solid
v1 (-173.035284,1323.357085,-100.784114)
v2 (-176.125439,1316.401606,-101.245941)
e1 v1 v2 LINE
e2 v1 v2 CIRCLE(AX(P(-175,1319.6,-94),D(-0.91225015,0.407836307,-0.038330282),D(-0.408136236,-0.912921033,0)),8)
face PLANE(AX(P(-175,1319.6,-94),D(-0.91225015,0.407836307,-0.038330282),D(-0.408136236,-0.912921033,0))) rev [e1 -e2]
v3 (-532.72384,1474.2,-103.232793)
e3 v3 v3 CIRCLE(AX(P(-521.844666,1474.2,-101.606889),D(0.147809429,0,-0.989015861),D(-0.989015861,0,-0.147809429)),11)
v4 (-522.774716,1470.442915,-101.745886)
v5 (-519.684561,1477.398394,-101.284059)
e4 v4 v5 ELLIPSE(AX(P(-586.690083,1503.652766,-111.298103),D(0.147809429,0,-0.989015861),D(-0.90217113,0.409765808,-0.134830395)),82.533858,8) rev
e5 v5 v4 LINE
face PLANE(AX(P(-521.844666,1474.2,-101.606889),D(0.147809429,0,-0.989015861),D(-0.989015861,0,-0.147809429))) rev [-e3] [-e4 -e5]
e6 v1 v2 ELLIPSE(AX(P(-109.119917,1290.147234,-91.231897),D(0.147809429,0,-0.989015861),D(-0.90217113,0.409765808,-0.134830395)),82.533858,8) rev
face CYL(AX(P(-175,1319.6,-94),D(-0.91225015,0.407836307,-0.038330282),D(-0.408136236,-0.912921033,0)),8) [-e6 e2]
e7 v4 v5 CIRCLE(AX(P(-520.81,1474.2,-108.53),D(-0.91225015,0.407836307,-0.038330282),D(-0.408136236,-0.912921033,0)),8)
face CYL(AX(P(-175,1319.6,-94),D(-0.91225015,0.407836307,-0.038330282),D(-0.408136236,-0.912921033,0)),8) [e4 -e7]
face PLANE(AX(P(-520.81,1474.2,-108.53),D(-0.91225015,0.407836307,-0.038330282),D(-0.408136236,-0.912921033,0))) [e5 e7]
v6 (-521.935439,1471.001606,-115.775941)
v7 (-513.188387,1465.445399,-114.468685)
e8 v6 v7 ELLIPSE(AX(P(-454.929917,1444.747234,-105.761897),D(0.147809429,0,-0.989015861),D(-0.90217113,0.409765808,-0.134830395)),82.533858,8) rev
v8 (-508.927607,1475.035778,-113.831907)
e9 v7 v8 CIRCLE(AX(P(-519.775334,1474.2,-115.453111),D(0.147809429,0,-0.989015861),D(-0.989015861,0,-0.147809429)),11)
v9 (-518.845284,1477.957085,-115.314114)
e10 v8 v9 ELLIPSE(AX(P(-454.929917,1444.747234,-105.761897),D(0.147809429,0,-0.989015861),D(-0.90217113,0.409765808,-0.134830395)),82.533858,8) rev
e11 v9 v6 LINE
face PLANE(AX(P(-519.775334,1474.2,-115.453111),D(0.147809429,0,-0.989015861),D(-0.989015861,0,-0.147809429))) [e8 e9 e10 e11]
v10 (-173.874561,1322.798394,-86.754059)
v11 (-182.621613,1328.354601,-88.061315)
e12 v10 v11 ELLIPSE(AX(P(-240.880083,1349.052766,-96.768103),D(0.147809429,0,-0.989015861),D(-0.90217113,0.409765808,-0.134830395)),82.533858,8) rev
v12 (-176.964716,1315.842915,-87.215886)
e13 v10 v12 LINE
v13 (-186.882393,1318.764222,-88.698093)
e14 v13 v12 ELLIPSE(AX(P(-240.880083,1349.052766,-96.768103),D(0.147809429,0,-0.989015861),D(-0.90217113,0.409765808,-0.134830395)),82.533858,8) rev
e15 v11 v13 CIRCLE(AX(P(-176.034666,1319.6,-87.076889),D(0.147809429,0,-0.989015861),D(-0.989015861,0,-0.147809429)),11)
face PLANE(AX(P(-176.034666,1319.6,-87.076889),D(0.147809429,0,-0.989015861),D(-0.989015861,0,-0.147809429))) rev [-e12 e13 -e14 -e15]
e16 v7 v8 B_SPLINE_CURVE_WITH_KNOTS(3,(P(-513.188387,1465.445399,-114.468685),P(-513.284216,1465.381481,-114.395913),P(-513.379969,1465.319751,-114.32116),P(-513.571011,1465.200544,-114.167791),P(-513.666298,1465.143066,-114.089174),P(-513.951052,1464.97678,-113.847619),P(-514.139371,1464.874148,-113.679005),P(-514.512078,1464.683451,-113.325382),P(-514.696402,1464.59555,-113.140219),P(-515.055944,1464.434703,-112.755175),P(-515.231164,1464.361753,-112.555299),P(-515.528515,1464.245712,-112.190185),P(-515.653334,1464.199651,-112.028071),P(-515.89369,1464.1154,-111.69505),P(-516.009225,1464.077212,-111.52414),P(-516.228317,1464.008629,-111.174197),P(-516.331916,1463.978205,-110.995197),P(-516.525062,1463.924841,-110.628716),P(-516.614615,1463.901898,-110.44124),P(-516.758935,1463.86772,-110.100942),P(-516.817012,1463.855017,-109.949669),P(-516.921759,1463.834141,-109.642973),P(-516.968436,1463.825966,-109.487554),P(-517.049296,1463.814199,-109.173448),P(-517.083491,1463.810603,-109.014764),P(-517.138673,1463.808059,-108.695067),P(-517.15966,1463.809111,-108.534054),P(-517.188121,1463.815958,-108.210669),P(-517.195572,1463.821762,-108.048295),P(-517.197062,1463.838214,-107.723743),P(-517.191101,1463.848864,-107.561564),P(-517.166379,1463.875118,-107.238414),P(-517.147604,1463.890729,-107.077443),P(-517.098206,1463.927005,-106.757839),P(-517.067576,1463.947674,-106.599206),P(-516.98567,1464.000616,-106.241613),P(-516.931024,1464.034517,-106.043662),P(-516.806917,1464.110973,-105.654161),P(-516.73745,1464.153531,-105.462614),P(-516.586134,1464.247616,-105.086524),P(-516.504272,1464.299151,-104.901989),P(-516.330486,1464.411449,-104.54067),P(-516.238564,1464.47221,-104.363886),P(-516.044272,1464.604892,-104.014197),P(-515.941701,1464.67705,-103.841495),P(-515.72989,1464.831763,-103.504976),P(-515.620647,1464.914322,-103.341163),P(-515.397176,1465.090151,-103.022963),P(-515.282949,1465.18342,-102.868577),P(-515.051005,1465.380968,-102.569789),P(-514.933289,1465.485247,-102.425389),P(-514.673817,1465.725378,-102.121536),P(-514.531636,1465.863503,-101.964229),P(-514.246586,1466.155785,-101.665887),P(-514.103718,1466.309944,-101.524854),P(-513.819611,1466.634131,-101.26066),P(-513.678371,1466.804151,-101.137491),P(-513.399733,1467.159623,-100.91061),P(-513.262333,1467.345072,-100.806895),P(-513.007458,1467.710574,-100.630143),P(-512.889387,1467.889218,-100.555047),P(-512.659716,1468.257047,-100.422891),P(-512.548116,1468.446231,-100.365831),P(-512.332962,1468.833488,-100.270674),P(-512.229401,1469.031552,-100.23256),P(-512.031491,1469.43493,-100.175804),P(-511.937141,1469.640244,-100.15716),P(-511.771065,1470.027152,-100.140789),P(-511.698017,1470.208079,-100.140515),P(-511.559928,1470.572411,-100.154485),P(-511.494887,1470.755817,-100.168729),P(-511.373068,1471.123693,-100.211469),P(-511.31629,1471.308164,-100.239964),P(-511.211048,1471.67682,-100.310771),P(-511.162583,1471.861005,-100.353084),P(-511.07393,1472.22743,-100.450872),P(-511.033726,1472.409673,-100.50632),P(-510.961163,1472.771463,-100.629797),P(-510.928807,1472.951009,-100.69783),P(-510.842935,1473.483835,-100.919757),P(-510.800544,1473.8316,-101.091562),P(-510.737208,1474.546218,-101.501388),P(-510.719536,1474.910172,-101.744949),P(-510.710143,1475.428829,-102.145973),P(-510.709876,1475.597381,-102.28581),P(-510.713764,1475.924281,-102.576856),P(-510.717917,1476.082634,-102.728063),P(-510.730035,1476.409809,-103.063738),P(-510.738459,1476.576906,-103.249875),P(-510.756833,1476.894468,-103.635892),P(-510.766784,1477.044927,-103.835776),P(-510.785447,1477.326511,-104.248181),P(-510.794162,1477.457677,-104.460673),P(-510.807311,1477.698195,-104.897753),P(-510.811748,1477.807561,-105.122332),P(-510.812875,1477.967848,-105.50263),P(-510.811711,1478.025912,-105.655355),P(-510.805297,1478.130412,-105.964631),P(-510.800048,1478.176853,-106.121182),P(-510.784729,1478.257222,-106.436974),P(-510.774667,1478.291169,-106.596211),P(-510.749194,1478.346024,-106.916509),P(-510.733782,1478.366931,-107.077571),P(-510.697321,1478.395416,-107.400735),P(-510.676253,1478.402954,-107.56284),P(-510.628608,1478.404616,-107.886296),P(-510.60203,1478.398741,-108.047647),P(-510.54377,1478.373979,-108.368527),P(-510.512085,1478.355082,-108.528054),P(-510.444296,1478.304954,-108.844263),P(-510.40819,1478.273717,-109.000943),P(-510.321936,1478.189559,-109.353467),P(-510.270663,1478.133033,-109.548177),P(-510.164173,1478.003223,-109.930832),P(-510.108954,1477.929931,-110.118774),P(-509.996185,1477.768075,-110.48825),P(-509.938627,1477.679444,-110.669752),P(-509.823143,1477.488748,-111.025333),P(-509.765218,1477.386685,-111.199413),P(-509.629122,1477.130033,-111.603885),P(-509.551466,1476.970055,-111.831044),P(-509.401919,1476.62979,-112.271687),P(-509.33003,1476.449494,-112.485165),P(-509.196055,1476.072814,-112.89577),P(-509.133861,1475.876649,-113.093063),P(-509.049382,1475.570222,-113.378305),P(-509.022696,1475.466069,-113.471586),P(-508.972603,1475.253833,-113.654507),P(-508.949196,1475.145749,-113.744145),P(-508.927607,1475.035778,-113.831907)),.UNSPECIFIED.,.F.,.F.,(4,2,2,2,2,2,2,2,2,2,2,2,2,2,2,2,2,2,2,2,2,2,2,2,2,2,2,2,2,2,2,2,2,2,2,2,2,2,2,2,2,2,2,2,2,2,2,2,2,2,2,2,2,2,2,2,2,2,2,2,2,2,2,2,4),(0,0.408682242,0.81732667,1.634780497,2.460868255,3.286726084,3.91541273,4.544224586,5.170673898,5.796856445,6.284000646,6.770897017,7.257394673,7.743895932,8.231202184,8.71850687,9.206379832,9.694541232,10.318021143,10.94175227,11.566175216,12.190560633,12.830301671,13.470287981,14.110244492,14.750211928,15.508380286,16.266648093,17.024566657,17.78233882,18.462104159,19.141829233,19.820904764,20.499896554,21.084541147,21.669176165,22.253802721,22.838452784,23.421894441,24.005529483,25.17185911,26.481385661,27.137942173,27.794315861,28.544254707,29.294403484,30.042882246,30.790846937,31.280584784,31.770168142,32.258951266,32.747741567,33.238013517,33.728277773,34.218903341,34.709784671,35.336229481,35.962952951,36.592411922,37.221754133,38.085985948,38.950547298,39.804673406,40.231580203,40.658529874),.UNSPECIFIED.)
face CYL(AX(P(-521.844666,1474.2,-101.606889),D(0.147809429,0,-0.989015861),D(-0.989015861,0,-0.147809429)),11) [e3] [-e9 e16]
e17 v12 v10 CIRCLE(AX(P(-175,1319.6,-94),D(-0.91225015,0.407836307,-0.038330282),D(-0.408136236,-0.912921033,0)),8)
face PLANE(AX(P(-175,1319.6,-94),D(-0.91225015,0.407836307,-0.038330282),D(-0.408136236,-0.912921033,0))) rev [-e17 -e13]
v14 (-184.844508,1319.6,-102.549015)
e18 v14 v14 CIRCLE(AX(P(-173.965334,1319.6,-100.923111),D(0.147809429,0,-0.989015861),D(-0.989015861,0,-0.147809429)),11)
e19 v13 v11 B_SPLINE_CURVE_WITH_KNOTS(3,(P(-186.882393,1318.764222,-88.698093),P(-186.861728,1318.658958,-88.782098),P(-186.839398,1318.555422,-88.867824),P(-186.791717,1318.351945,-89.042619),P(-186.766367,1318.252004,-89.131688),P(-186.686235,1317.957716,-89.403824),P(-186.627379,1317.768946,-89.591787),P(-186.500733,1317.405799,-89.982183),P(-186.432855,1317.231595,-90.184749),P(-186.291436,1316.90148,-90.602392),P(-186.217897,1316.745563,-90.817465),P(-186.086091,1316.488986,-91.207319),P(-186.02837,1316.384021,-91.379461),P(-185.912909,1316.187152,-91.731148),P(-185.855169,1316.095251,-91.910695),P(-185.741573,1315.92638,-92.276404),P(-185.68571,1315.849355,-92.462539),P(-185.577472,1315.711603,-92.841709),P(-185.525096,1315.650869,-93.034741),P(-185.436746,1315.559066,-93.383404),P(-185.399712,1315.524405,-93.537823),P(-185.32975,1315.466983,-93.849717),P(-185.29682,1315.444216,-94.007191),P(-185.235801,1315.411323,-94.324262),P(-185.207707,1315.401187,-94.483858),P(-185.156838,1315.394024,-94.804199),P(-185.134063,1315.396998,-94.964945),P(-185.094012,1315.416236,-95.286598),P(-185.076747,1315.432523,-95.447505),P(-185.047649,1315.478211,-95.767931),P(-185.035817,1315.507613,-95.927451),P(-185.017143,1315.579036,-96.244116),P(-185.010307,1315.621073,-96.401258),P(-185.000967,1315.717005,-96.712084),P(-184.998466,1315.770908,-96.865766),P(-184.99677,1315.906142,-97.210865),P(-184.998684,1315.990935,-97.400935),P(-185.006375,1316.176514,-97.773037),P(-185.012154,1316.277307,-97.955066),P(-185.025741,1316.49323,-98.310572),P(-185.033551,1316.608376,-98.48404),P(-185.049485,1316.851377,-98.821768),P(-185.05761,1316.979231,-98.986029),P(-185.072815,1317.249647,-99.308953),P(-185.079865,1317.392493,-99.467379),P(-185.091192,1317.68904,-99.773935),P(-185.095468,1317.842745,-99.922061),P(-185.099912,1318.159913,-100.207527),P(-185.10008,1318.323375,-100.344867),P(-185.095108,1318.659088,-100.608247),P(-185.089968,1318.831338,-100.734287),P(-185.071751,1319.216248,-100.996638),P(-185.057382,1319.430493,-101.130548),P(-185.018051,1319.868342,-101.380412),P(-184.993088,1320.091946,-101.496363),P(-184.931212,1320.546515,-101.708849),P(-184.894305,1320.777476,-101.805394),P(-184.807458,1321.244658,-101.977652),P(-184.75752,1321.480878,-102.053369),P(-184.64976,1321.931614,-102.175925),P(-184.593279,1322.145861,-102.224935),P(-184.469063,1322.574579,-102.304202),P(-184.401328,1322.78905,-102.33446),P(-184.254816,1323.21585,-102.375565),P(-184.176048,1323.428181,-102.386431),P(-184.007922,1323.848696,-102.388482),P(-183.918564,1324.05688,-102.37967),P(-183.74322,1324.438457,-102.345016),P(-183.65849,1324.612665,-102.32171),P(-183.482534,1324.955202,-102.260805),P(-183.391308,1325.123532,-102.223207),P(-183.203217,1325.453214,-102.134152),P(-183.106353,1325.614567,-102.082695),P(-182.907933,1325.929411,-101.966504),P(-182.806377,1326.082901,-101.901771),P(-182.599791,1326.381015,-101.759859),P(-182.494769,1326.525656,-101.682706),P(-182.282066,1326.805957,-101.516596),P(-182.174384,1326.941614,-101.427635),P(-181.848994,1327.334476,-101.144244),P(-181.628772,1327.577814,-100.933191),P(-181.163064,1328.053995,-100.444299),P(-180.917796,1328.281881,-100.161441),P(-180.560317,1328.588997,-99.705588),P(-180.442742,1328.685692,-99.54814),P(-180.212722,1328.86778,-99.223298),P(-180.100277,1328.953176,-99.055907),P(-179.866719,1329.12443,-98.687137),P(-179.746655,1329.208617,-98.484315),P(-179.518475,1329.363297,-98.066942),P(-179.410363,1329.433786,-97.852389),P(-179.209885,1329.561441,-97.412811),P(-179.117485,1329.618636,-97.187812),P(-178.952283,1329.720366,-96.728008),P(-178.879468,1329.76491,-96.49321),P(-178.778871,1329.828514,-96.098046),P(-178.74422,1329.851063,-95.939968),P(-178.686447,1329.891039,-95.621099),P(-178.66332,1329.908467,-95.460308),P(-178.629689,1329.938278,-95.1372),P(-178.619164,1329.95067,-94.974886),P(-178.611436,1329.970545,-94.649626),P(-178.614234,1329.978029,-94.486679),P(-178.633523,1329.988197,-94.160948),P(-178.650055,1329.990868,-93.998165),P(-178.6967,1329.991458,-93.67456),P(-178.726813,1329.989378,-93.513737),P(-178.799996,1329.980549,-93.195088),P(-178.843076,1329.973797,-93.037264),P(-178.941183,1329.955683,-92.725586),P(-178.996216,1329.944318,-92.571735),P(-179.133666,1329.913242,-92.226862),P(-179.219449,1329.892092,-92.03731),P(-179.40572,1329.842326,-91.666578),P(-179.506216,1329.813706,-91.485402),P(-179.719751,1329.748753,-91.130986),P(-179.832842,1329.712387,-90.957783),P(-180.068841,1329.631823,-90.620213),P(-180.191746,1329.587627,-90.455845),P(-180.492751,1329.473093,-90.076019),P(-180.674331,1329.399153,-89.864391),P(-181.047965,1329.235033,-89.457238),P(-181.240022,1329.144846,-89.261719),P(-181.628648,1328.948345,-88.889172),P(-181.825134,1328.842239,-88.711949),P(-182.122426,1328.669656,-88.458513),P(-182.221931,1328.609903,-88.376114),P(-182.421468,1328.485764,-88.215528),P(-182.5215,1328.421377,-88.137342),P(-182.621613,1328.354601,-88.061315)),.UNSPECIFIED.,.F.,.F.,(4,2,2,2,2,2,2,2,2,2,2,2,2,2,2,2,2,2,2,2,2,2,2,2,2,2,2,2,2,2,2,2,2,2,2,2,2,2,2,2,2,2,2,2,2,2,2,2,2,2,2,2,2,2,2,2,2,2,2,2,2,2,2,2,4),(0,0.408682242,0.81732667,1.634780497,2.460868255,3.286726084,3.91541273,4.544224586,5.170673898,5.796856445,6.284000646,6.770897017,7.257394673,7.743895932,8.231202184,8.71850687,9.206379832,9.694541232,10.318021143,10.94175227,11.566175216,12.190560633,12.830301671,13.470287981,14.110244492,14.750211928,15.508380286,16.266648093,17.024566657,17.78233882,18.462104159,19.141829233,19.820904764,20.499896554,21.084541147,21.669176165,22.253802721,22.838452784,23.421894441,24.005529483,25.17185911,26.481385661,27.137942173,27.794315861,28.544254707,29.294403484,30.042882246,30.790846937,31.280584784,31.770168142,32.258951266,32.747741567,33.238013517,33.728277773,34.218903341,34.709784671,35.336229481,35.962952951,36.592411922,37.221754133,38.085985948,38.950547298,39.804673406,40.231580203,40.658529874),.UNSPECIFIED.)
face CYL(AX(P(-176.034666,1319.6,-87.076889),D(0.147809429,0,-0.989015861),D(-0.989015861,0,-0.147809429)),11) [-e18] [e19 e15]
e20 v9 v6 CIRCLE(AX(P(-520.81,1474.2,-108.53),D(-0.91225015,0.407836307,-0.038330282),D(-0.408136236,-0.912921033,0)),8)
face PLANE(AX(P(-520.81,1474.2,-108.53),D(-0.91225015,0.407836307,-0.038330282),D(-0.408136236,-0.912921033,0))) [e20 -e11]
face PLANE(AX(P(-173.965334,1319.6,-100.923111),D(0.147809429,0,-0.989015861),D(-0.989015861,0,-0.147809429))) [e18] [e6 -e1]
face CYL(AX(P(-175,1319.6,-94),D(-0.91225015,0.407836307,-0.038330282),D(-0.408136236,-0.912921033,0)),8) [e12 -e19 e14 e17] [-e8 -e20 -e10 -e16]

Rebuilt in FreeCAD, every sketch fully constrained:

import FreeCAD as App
import Part
import Sketcher

V = App.Vector
Q = App.Units.Quantity

doc = App.newDocument("Part")
params = doc.addObject("Spreadsheet::Sheet", "Params")
for row, (alias, value) in enumerate([
    ("sketch1_diameter", "16 mm"),
    ("sketch3_diameter", "22 mm"),
    ("sketch4_width", "14 mm"),
    ("sketch5_diameter", "22 mm"),
    ("sketch6_width", "14 mm"),
], start=1):
    params.set(f"A{row}", alias)
    params.set(f"B{row}", "=" + value)
    params.setAlias(f"B{row}", alias)

body = doc.addObject("PartDesign::Body", "Body")

sketch1 = doc.addObject("Sketcher::SketchObject", "Sketch")
body.addObject(sketch1)
sketch1.Placement = App.Placement(V(-175, 1319.6, -94), App.Rotation(V(-0.408136236, -0.912921033, 0), V(-0.034992521, 0.015643977, 0.999265125), V(-0.91225015, 0.407836307, -0.038330282), "ZXY"))
sketch1.addGeometry(Part.Circle(V(0, 0, 0), V(0, 0, 1), 8), False)
sketch1.addConstraint([
    Sketcher.Constraint("Coincident", 0, 3, -1, 1),
    Sketcher.Constraint("Diameter", 0, Q("16 mm")),
])
sketch1.setExpression("Constraints[1]", "Params.sketch1_diameter")

sketch2 = doc.addObject("Sketcher::SketchObject", "Sketch001")
body.addObject(sketch2)
sketch2.Placement = App.Placement(V(462.527227, 1034.583056, 0), App.Rotation(V(-0.912921033, 0.408136236, 0), V(0, 0, 1), V(0.408136236, 0.912921033, 0), "ZXY"))
sketch2.addGeometry(Part.LineSegment(V(698.337757, -94, 0), V(1077.132842, -108.53, 0)), False)
sketch2.addConstraint([
    Sketcher.Constraint("DistanceY", 0, 1, -1, 1, Q("94 mm")),
    Sketcher.Constraint("DistanceY", 0, 2, -1, 1, Q("108.53 mm")),
    Sketcher.Constraint("DistanceX", -1, 1, 0, 2, Q("1077.132842 mm")),
    Sketcher.Constraint("Distance", 0, Q("379.073656 mm")),
])
doc.recompute()

additivepipe = doc.addObject("PartDesign::AdditivePipe", "AdditivePipe")
body.addObject(additivepipe)
additivepipe.Profile = sketch1
additivepipe.Spine = (sketch2, ["Edge1"])

sketch3 = doc.addObject("Sketcher::SketchObject", "Sketch002")
body.addObject(sketch3)
sketch3.Placement = App.Placement(V(-176.034666, 1319.6, -87.076889), App.Rotation(V(-0.989015861, 0, -0.147809429), V(0, 1.000000001, 0), V(0.147809429, 0, -0.989015861), "ZXY"))
sketch3.addGeometry(Part.Circle(V(0, 0, 0), V(0, 0, 1), 11), False)
sketch3.addConstraint([
    Sketcher.Constraint("Coincident", 0, 3, -1, 1),
    Sketcher.Constraint("Diameter", 0, Q("22 mm")),
])
sketch3.setExpression("Constraints[1]", "Params.sketch3_diameter")

sketch4 = doc.addObject("Sketcher::SketchObject", "Sketch003")
body.addObject(sketch4)
sketch4.Placement = App.Placement(V(-184.918137, 0, -27.636204), App.Rotation(V(0.147809429, 0, -0.989015861), V(0, 1.000000001, 0), V(0.989015861, 0, 0.147809429), "ZXY"))
sketch4.addGeometry(Part.LineSegment(V(60.100841, 1319.600002, 0), V(74.100841, 1319.600002, 0)), False)
sketch4.addConstraint([
    Sketcher.Constraint("Horizontal", 0),
    Sketcher.Constraint("DistanceX", 0, 1, 0, 2, Q("14 mm")),
    Sketcher.Constraint("DistanceY", -1, 1, 0, 1, Q("1319.600002 mm")),
    Sketcher.Constraint("DistanceX", -1, 1, 0, 1, Q("60.100841 mm")),
])
sketch4.setExpression("Constraints[1]", "Params.sketch4_width")
doc.recompute()

additivepipe2 = doc.addObject("PartDesign::AdditivePipe", "AdditivePipe001")
body.addObject(additivepipe2)
additivepipe2.Profile = sketch3
additivepipe2.Spine = (sketch4, ["Edge1"])

sketch5 = doc.addObject("Sketcher::SketchObject", "Sketch004")
body.addObject(sketch5)
sketch5.Placement = App.Placement(V(-521.844666, 1474.2, -101.606889), App.Rotation(V(-0.989015861, 0, -0.147809429), V(0, 1.000000001, 0), V(0.147809429, 0, -0.989015861), "ZXY"))
sketch5.addGeometry(Part.Circle(V(0, 0, 0), V(0, 0, 1), 11), False)
sketch5.addConstraint([
    Sketcher.Constraint("Coincident", 0, 3, -1, 1),
    Sketcher.Constraint("Diameter", 0, Q("22 mm")),
])
sketch5.setExpression("Constraints[1]", "Params.sketch5_diameter")

sketch6 = doc.addObject("Sketcher::SketchObject", "Sketch005")
body.addObject(sketch6)
sketch6.Placement = App.Placement(V(-525.29709, 0, -78.506186), App.Rotation(V(0.147809429, 0, -0.989015861), V(0, 1.000000001, 0), V(0.989015861, 0, 0.147809429), "ZXY"))
sketch6.addGeometry(Part.LineSegment(V(23.357263, 1474.200002, 0), V(37.357263, 1474.200002, 0)), False)
sketch6.addConstraint([
    Sketcher.Constraint("Horizontal", 0),
    Sketcher.Constraint("DistanceX", 0, 1, 0, 2, Q("14 mm")),
    Sketcher.Constraint("DistanceY", -1, 1, 0, 1, Q("1474.200002 mm")),
    Sketcher.Constraint("DistanceX", -1, 1, 0, 1, Q("23.357263 mm")),
])
sketch6.setExpression("Constraints[1]", "Params.sketch6_width")
doc.recompute()

additivepipe3 = doc.addObject("PartDesign::AdditivePipe", "AdditivePipe002")
body.addObject(additivepipe3)
additivepipe3.Profile = sketch5
additivepipe3.Spine = (sketch6, ["Edge1"])

doc.recompute()
